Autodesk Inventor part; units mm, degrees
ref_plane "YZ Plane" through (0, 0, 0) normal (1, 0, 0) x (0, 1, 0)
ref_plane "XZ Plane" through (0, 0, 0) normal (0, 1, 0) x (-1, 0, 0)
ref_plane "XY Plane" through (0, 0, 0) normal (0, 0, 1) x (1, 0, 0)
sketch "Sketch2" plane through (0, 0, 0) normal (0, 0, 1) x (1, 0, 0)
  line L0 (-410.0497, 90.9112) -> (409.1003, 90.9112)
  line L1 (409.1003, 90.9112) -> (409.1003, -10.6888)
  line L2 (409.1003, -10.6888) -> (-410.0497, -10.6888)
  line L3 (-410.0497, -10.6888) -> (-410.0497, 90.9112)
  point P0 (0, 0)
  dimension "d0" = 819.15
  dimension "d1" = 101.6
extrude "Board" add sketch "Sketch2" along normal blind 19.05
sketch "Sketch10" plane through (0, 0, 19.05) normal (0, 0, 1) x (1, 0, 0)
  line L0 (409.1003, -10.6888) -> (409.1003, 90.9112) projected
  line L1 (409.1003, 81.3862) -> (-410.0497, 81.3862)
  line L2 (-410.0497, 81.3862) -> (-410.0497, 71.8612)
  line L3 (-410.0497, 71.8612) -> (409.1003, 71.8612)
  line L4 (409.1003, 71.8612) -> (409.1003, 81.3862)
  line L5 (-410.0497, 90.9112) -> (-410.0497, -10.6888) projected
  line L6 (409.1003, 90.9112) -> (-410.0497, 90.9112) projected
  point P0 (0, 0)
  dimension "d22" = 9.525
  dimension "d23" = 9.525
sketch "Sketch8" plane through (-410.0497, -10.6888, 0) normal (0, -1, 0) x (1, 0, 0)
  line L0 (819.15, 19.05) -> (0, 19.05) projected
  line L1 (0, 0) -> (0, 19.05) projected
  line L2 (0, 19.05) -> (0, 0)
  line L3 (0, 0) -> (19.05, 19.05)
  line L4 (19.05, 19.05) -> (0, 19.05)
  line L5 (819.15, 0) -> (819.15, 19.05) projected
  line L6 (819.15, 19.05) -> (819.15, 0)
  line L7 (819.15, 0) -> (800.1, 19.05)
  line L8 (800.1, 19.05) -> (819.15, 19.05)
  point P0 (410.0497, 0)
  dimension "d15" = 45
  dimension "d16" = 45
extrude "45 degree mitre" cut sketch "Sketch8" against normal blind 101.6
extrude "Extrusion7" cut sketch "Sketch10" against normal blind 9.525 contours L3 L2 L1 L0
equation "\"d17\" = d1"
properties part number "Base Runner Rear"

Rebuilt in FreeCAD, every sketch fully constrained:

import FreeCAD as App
import Part
import Sketcher
from FreeCAD import Vector
Q = App.Units.Quantity


def add_polygon(sketch, points):
    """Adds a closed chain of lines whose ends are joined by coincident constraints."""
    first, n = sketch.GeometryCount, len(points)
    for a, b in zip(points, points[1:] + points[:1]):
        sketch.addGeometry(Part.LineSegment(App.Vector(*a, 0), App.Vector(*b, 0)), False)
    for i in range(n):
        sketch.addConstraint(Sketcher.Constraint("Coincident", first + i, 2, first + (i + 1) % n, 1))

doc = App.newDocument("Part")
params = doc.addObject("Spreadsheet::Sheet", "Params")
for row, (alias, value) in enumerate([
    ("sketch1_height", "4 in"),
    ("sketch1_width", "32.25 in"),
    ("pad1_length", "0.75 in"),
    ("sketch2_width", "0.75 in"),
    ("pocket1_length", "4 in"),
    ("sketch3_height", "0.375 in"),
    ("sketch3_width", "32.25 in"),
    ("pocket2_length", "0.375 in"),
], start=1):
    params.set(f"A{row}", alias)
    params.set(f"B{row}", "=" + value)
    params.setAlias(f"B{row}", alias)

body = doc.addObject("PartDesign::Body", "Body")

sketch1 = doc.addObject("Sketcher::SketchObject", "Sketch")
body.addObject(sketch1)
sketch1.AttachmentSupport = (doc.XY_Plane, [""])
sketch1.MapMode = "FlatFace"
add_polygon(sketch1, [(409, 91), (-410, 91), (-410, -11), (409, -11)])
sketch1.addConstraint([
    Sketcher.Constraint("Horizontal", 0),
    Sketcher.Constraint("Vertical", 1),
    Sketcher.Constraint("Horizontal", 2),
    Sketcher.Constraint("Vertical", 3),
    Sketcher.Constraint("DistanceY", 1, 2, 1, 1, Q("4 in")),
    Sketcher.Constraint("DistanceX", 0, 2, 0, 1, Q("32.25 in")),
    Sketcher.Constraint("DistanceX", 0, 2, -1, 1, Q("16.1437 in")),
    Sketcher.Constraint("DistanceY", -1, 1, 0, 2, 90.9112),
])
sketch1.setExpression("Constraints[8]", "Params.sketch1_height")
sketch1.setExpression("Constraints[9]", "Params.sketch1_width")
pad1 = doc.addObject("PartDesign::Pad", "Pad")
body.addObject(pad1)
pad1.Profile = sketch1
pad1.setExpression("Length", "Params.pad1_length")

sketch2 = doc.addObject("Sketcher::SketchObject", "Sketch001")
body.addObject(sketch2)
sketch2.AttachmentSupport = (doc.XZ_Plane, [""])
sketch2.MapMode = "FlatFace"
sketch2.AttachmentOffset = App.Placement(Vector(0, 0, 10.6888), App.Rotation())
add_polygon(sketch2, [(409, 0), (409, 19), (390, 19)])
add_polygon(sketch2, [(-410, 0), (-391, 19), (-410, 19)])
sketch2.addConstraint([
    Sketcher.Constraint("Vertical", 0),
    Sketcher.Constraint("Horizontal", 1),
    Sketcher.Constraint("Horizontal", 4),
    Sketcher.Constraint("Vertical", 5),
    Sketcher.Constraint("PointOnObject", 2, 2, -1),
    Sketcher.Constraint("PointOnObject", 5, 2, -1),
    Sketcher.Constraint("Perpendicular", 2, 3),
    Sketcher.Constraint("Horizontal", 1, 2, 3, 2),
    Sketcher.Constraint("Equal", 1, 4),
    Sketcher.Constraint("DistanceX", 1, 2, 1, 1, Q("0.75 in")),
    Sketcher.Constraint("DistanceX", 3, 2, 0, 2, Q("31.5 in")),
    Sketcher.Constraint("DistanceX", -1, 1, 0, 2, Q("16.1063 in")),
])
sketch2.setExpression("Constraints[15]", "Params.sketch2_width")
pocket1 = doc.addObject("PartDesign::Pocket", "Pocket")
body.addObject(pocket1)
pocket1.Profile = sketch2
pocket1.setExpression("Length", "Params.pocket1_length")

sketch3 = doc.addObject("Sketcher::SketchObject", "Sketch002")
body.addObject(sketch3)
sketch3.AttachmentSupport = (doc.XY_Plane, [""])
sketch3.MapMode = "FlatFace"
sketch3.AttachmentOffset = App.Placement(Vector(0, 0, 0.75 * 25.4), App.Rotation())
add_polygon(sketch3, [(-410, 72), (409, 72), (409, 81), (-410, 81)])
sketch3.addConstraint([
    Sketcher.Constraint("Horizontal", 0),
    Sketcher.Constraint("Vertical", 1),
    Sketcher.Constraint("Horizontal", 2),
    Sketcher.Constraint("Vertical", 3),
    Sketcher.Constraint("DistanceY", 1, 1, 1, 2, Q("0.375 in")),
    Sketcher.Constraint("DistanceX", 0, 1, 0, 2, Q("32.25 in")),
    Sketcher.Constraint("DistanceX", -1, 1, 0, 2, Q("16.1063 in")),
    Sketcher.Constraint("DistanceY", -1, 1, 0, 2, 71.8612),
])
sketch3.setExpression("Constraints[8]", "Params.sketch3_height")
sketch3.setExpression("Constraints[9]", "Params.sketch3_width")
pocket2 = doc.addObject("PartDesign::Pocket", "Pocket001")
body.addObject(pocket2)
pocket2.Profile = sketch3
pocket2.setExpression("Length", "Params.pocket2_length")

doc.recompute()
